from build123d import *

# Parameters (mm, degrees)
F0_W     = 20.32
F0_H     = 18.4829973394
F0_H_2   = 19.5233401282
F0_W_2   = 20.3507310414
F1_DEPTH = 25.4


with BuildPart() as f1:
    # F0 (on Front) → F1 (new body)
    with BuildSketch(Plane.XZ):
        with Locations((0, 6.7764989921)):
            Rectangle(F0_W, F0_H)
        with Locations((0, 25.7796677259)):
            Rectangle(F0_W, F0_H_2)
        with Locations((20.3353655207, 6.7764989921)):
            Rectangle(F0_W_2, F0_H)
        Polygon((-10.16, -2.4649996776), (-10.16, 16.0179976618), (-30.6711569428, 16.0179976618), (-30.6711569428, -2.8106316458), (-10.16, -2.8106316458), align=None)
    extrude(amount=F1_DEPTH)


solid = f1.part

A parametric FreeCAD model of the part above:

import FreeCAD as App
import Part
import Sketcher

V = App.Vector
Q = App.Units.Quantity


def add_polygon(sketch, points):
    """Adds a closed chain of lines whose ends are joined by coincident constraints."""
    first, n = sketch.GeometryCount, len(points)
    for a, b in zip(points, points[1:] + points[:1]):
        sketch.addGeometry(Part.LineSegment(App.Vector(*a, 0), App.Vector(*b, 0)), False)
    for i in range(n):
        sketch.addConstraint(Sketcher.Constraint("Coincident", first + i, 2, first + (i + 1) % n, 1))

doc = App.newDocument("Part")
body = doc.addObject("PartDesign::Body", "Body")

# Sketch on XZ plane
sketch1 = doc.addObject("Sketcher::SketchObject", "Sketch")
body.addObject(sketch1)
sketch1.AttachmentSupport = (doc.XZ_Plane, [""])
sketch1.MapMode = "FlatFace"
add_polygon(sketch1, [(-10.16, -2.46), (30.51, -2.46), (30.51, 16.02), (10.16, 16.02), (10.16, 35.54), (-10.16, 35.54), (-10.16, 16.02), (-30.67, 16.02), (-30.67, -2.81), (-10.16, -2.81)])  # lines 0-9
sketch1.addConstraint([
    Sketcher.Constraint("Horizontal", 0),
    Sketcher.Constraint("Vertical", 1),
    Sketcher.Constraint("Horizontal", 2),
    Sketcher.Constraint("Vertical", 3),
    Sketcher.Constraint("Horizontal", 4),
    Sketcher.Constraint("Vertical", 5),
    Sketcher.Constraint("Horizontal", 6),
    Sketcher.Constraint("Vertical", 7),
    Sketcher.Constraint("Horizontal", 8),
    Sketcher.Constraint("Vertical", 9),
    Sketcher.Constraint("Symmetric", 2, 2, 5, 2, -2),
    Sketcher.Constraint("Vertical", 5, 2, 8, 2),
    Sketcher.Constraint("DistanceX", 4, 2, 4, 1, Q("0.8 in")),
    Sketcher.Constraint("DistanceX", 0, 1, 0, 2, 40.670731),
    Sketcher.Constraint("DistanceY", 3, 1, 3, 2, 19.52334),
    Sketcher.Constraint("DistanceY", 7, 2, 7, 1, 18.828629),
    Sketcher.Constraint("DistanceY", 9, 1, 9, 2, 0.345632),
    Sketcher.Constraint("DistanceY", 0, 2, -1, 1, 2.465),
    Sketcher.Constraint("DistanceX", 6, 2, 6, 1, 20.511157),
])
pad1 = doc.addObject("PartDesign::Pad", "Pad")
body.addObject(pad1)
pad1.Profile = sketch1
pad1.Length = Q("1 in")

doc.recompute()
